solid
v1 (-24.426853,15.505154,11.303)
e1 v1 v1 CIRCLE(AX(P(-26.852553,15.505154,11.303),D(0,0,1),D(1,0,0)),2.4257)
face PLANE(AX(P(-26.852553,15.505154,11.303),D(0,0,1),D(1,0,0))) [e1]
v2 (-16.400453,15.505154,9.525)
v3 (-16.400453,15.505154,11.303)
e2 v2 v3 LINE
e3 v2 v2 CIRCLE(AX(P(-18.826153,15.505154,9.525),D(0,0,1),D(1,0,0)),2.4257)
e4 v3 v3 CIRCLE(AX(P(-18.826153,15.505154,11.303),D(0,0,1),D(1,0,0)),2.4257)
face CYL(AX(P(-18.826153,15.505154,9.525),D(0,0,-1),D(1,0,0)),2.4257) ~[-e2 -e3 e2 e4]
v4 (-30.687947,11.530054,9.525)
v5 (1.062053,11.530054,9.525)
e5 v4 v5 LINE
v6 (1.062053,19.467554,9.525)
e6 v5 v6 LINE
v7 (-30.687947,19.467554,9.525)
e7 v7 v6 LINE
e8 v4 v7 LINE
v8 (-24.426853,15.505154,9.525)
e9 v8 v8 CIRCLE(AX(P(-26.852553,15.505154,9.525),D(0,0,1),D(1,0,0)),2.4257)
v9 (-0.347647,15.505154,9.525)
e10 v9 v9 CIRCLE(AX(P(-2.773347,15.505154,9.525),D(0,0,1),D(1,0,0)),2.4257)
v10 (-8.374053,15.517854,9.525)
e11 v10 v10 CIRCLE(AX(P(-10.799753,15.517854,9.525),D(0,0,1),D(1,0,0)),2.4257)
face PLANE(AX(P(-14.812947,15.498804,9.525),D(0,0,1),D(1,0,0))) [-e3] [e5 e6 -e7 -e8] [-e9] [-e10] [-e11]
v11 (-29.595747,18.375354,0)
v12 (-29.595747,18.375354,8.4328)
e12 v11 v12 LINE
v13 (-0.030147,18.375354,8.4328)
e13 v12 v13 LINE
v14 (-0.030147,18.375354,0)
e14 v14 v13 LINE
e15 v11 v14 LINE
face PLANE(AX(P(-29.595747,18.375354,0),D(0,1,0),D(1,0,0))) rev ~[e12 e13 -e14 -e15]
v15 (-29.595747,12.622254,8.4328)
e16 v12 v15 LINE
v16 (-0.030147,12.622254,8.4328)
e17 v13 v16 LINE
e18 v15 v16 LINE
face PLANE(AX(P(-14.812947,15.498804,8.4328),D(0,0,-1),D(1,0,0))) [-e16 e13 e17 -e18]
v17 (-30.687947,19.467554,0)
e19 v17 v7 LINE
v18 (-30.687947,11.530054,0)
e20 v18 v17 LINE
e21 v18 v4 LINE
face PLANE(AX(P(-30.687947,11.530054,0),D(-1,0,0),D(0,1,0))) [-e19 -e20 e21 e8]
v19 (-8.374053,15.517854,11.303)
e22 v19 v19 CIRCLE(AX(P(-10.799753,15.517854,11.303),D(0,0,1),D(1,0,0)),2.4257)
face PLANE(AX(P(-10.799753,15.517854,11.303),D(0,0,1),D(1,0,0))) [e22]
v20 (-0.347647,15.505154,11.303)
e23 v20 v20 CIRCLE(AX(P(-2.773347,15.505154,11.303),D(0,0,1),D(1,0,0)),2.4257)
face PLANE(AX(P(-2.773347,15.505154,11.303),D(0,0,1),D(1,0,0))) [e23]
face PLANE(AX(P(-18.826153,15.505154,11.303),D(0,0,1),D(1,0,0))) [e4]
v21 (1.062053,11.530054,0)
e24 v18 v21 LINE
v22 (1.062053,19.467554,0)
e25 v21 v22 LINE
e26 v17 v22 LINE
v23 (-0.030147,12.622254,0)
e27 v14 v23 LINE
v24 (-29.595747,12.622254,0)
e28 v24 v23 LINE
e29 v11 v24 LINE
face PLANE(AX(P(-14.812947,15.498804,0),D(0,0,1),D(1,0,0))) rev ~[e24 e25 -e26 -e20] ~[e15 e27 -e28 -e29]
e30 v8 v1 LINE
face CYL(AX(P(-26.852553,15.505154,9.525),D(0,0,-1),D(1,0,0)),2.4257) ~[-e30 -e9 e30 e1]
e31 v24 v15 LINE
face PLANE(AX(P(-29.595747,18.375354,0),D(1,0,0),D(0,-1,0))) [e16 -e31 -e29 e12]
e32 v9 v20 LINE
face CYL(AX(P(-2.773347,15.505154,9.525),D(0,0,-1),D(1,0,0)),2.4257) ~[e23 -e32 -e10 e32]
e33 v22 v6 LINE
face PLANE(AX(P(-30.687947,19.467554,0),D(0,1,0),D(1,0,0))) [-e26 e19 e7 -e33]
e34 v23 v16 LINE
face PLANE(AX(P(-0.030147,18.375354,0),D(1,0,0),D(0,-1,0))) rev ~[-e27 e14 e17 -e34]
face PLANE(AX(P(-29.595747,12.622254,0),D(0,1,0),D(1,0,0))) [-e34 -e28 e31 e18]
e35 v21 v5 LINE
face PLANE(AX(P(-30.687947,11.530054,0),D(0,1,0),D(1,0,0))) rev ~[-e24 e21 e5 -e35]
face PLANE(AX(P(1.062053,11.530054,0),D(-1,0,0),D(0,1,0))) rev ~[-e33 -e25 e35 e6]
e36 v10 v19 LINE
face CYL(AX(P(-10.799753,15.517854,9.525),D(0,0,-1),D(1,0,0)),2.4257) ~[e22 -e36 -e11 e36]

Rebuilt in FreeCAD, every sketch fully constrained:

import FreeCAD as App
import Part
import Sketcher
Q = App.Units.Quantity

doc = App.newDocument("Part")
body = doc.addObject("PartDesign::Body", "Body")

# Sketch on XY plane
sketch1 = body.newObject("Sketcher::SketchObject", "Sketch")
sketch1.AttachmentSupport = (doc.getObject("XY_Plane"), [""])
sketch1.MapMode = "FlatFace"
sketch1.addGeometry([
    Part.LineSegment(App.Vector(-31, 19, 0), App.Vector(-31, 12, 0)),
    Part.LineSegment(App.Vector(-31, 12, 0), App.Vector(1, 12, 0)),
    Part.LineSegment(App.Vector(1, 12, 0), App.Vector(1, 19, 0)),
    Part.LineSegment(App.Vector(1, 19, 0), App.Vector(-31, 19, 0)),
], False)
sketch1.addConstraint([
    Sketcher.Constraint("Coincident", 0, 2, 1, 1),
    Sketcher.Constraint("Coincident", 1, 2, 2, 1),
    Sketcher.Constraint("Coincident", 2, 2, 3, 1),
    Sketcher.Constraint("Coincident", 3, 2, 0, 1),
    Sketcher.Constraint("Vertical", 0),
    Sketcher.Constraint("Horizontal", 1),
    Sketcher.Constraint("Vertical", 2),
    Sketcher.Constraint("Horizontal", 3),
    Sketcher.Constraint("DistanceX", 1, 1, 1, 2, Q("1.25 in")),
    Sketcher.Constraint("DistanceY", 0, 2, 0, 1, Q("0.3125 in")),
    Sketcher.Constraint("DistanceX", 0, 2, -1, 1, 30.687947),
    Sketcher.Constraint("DistanceY", -1, 1, 0, 2, 11.530054),
])
pad1 = body.newObject("PartDesign::Pad", "Pad")
pad1.Profile = sketch1
pad1.Length = Q("0.375 in")

# Sketch on XY plane
sketch2 = body.newObject("Sketcher::SketchObject", "Sketch001")
sketch2.AttachmentSupport = (doc.getObject("XY_Plane"), [""])
sketch2.MapMode = "FlatFace"
sketch2.AttachmentOffset = App.Placement(App.Vector(0, 0, 0.375 * 25.4), App.Rotation())
sketch2.addGeometry([
    Part.Circle(App.Vector(-26.9, 15.5, 0), App.Vector(0, 0, 1), 2.4),
    Part.Circle(App.Vector(-18.8, 15.5, 0), App.Vector(0, 0, 1), 2.4),
    Part.Circle(App.Vector(-10.8, 15.5, 0), App.Vector(0, 0, 1), 2.4),
    Part.Circle(App.Vector(-2.8, 15.5, 0), App.Vector(0, 0, 1), 2.4),
], False)
sketch2.addConstraint([
    Sketcher.Constraint("Equal", 0, 1),
    Sketcher.Constraint("Equal", 1, 2),
    Sketcher.Constraint("Equal", 2, 3),
    Sketcher.Constraint("Horizontal", 0, 3, 1, 3),
    Sketcher.Constraint("Horizontal", 1, 3, 3, 3),
    Sketcher.Constraint("Diameter", 0, Q("0.191 in")),
    Sketcher.Constraint("DistanceX", 0, 3, 1, 3, Q("0.316 in")),
    Sketcher.Constraint("DistanceX", 1, 3, 2, 3, Q("0.316 in")),
    Sketcher.Constraint("DistanceY", 1, 3, 2, 3, Q("0.0005 in")),
    Sketcher.Constraint("DistanceX", 0, 3, -1, 1, 26.852553),
    Sketcher.Constraint("DistanceY", -1, 1, 0, 3, 15.505154),
    Sketcher.Constraint("DistanceX", 3, 3, -1, 1, 2.773347),
])
pad2 = body.newObject("PartDesign::Pad", "Pad001")
pad2.Profile = sketch2
pad2.Length = Q("0.07 in")

# Sketch on XY plane
sketch3 = body.newObject("Sketcher::SketchObject", "Sketch002")
sketch3.AttachmentSupport = (doc.getObject("XY_Plane"), [""])
sketch3.MapMode = "FlatFace"
sketch3.addGeometry([
    Part.LineSegment(App.Vector(-30, 13, 0), App.Vector(-30, 18, 0)),
    Part.LineSegment(App.Vector(-30, 18, 0), App.Vector(0, 18, 0)),
    Part.LineSegment(App.Vector(0, 18, 0), App.Vector(0, 13, 0)),
    Part.LineSegment(App.Vector(0, 13, 0), App.Vector(-30, 13, 0)),
], False)
sketch3.addConstraint([
    Sketcher.Constraint("Coincident", 0, 2, 1, 1),
    Sketcher.Constraint("Coincident", 1, 2, 2, 1),
    Sketcher.Constraint("Coincident", 2, 2, 3, 1),
    Sketcher.Constraint("Coincident", 3, 2, 0, 1),
    Sketcher.Constraint("Vertical", 0),
    Sketcher.Constraint("Horizontal", 1),
    Sketcher.Constraint("Vertical", 2),
    Sketcher.Constraint("Horizontal", 3),
    Sketcher.Constraint("DistanceX", 1, 1, 1, 2, Q("1.164 in")),
    Sketcher.Constraint("DistanceY", 0, 1, 0, 2, Q("0.2265 in")),
    Sketcher.Constraint("DistanceX", 0, 2, -1, 1, 29.595747),
    Sketcher.Constraint("DistanceY", -1, 1, 0, 2, 18.375354),
])
pocket1 = body.newObject("PartDesign::Pocket", "Pocket")
pocket1.Profile = sketch3
pocket1.Length = Q("0.332 in")
pocket1.Reversed = True

doc.recompute()
